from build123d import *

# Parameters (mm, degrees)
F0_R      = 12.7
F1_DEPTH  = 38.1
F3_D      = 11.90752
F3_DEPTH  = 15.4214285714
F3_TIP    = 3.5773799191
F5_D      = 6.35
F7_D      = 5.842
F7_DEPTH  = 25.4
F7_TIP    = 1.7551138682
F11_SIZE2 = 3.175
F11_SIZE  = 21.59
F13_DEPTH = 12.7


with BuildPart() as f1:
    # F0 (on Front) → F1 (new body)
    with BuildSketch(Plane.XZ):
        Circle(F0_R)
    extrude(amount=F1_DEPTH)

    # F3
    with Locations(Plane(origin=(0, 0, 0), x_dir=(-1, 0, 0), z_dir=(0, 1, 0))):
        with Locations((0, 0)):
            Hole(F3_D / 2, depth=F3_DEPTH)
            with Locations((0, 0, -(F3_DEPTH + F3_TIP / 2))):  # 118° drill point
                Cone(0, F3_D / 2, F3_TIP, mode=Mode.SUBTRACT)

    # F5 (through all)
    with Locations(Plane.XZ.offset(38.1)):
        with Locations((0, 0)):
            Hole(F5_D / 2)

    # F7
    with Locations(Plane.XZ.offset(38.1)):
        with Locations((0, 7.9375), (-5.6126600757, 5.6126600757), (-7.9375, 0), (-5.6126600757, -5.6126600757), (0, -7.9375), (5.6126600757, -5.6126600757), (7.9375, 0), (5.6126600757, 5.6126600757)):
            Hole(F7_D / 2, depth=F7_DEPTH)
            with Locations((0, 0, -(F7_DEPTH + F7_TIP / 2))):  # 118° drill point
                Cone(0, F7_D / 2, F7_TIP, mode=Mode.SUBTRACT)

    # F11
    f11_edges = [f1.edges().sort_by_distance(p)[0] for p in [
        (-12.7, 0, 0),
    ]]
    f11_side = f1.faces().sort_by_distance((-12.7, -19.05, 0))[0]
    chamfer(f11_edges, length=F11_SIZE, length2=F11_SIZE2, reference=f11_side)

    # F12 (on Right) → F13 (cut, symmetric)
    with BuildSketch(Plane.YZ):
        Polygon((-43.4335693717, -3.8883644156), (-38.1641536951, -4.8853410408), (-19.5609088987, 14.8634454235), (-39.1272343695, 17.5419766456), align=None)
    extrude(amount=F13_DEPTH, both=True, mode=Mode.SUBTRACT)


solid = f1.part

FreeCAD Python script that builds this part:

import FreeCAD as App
import Part
import Sketcher
from FreeCAD import Vector
Q = App.Units.Quantity


def edges_at(feature, points):
    """Names of the edges that pass closest to the given points."""
    edges = feature.Shape.Edges
    near = lambda p: min(range(len(edges)), key=lambda i: edges[i].distToShape(Part.Vertex(*p))[0])
    return sorted({f"Edge{near(p) + 1}" for p in points})

doc = App.newDocument("Part")
body = doc.addObject("PartDesign::Body", "Body")

sketch1 = doc.addObject("Sketcher::SketchObject", "Sketch")
body.addObject(sketch1)
sketch1.AttachmentSupport = (doc.XZ_Plane, [""])
sketch1.MapMode = "FlatFace"
sketch1.addGeometry(Part.Circle(Vector(0, 0, 0), Vector(0, 0, 1), 13), False)
sketch1.addConstraint([
    Sketcher.Constraint("Coincident", 0, 3, -1, 1),
    Sketcher.Constraint("Diameter", 0, Q("1 in")),
])
pad1 = doc.addObject("PartDesign::Pad", "Pad")
body.addObject(pad1)
pad1.Profile = sketch1
pad1.Length = Q("1.5 in")

sketch2 = doc.addObject("Sketcher::SketchObject", "Sketch001")
body.addObject(sketch2)
sketch2.AttachmentSupport = (doc.XZ_Plane, [""])
sketch2.MapMode = "FlatFace"
sketch2.addGeometry(Part.Circle(Vector(0, 0, 0), Vector(0, 0, 1), 6), False)
sketch2.addConstraint([
    Sketcher.Constraint("Coincident", 0, 3, -1, 1),
    Sketcher.Constraint("Diameter", 0, Q("0.4688 in")),
])
doc.recompute()
hole = doc.addObject("PartDesign::Hole", "Hole")
body.addObject(hole)
hole.Profile = sketch2
hole.ThreadType = "None"
hole.Diameter = Q("0.4688 in")
hole.DepthType = "Dimension"
hole.Depth = 15.421429
hole.DrillPoint = "Angled"
hole.DrillPointAngle = 118
hole.Reversed = True

sketch3 = doc.addObject("Sketcher::SketchObject", "Sketch002")
body.addObject(sketch3)
sketch3.AttachmentSupport = (doc.XZ_Plane, [""])
sketch3.MapMode = "FlatFace"
sketch3.AttachmentOffset = App.Placement(Vector(0, 0, 1.5 * 25.4), App.Rotation())
sketch3.addGeometry(Part.Circle(Vector(0, 0, 0), Vector(0, 0, 1), 3.2), False)
sketch3.addConstraint([
    Sketcher.Constraint("Coincident", 0, 3, -1, 1),
    Sketcher.Constraint("Diameter", 0, Q("0.25 in")),
])
doc.recompute()
hole2 = doc.addObject("PartDesign::Hole", "Hole001")
body.addObject(hole2)
hole2.Profile = sketch3
hole2.ThreadType = "None"
hole2.Diameter = Q("0.25 in")
hole2.DepthType = "ThroughAll"

sketch4 = doc.addObject("Sketcher::SketchObject", "Sketch003")
body.addObject(sketch4)
sketch4.AttachmentSupport = (doc.XZ_Plane, [""])
sketch4.MapMode = "FlatFace"
sketch4.AttachmentOffset = App.Placement(Vector(0, 0, 1.5 * 25.4), App.Rotation())
sketch4.addGeometry([
    Part.Circle(Vector(0, 7.9, 0), Vector(0, 0, 1), 2.9),
    Part.Circle(Vector(-5.6, 5.6, 0), Vector(0, 0, 1), 2.9),
    Part.Circle(Vector(-7.9, 0, 0), Vector(0, 0, 1), 2.9),
    Part.Circle(Vector(-5.6, -5.6, 0), Vector(0, 0, 1), 2.9),
    Part.Circle(Vector(0, -7.9, 0), Vector(0, 0, 1), 2.9),
    Part.Circle(Vector(5.6, -5.6, 0), Vector(0, 0, 1), 2.9),
    Part.Circle(Vector(7.9, 0, 0), Vector(0, 0, 1), 2.9),
    Part.Circle(Vector(5.6, 5.6, 0), Vector(0, 0, 1), 2.9),
], False)
sketch4.addConstraint([
    Sketcher.Constraint("Equal", 0, 1),
    Sketcher.Constraint("Equal", 1, 2),
    Sketcher.Constraint("Equal", 2, 3),
    Sketcher.Constraint("Equal", 3, 4),
    Sketcher.Constraint("Equal", 4, 5),
    Sketcher.Constraint("Equal", 5, 6),
    Sketcher.Constraint("Equal", 6, 7),
    Sketcher.Constraint("Symmetric", 0, 3, 4, 3, -1, 1),
    Sketcher.Constraint("Symmetric", 1, 3, 5, 3, -1, 1),
    Sketcher.Constraint("Symmetric", 2, 3, 6, 3, -1, 1),
    Sketcher.Constraint("Symmetric", 3, 3, 7, 3, -1, 1),
    Sketcher.Constraint("Symmetric", 3, 3, 5, 3, -2),
    Sketcher.Constraint("PointOnObject", 0, 3, -2),
    Sketcher.Constraint("PointOnObject", 2, 3, -1),
    Sketcher.Constraint("Diameter", 0, Q("0.23 in")),
    Sketcher.Constraint("DistanceY", -1, 1, 0, 3, Q("0.3125 in")),
    Sketcher.Constraint("DistanceX", 2, 3, -1, 1, Q("0.3125 in")),
    Sketcher.Constraint("DistanceX", 1, 3, -1, 1, Q("5.61266 mm")),
    Sketcher.Constraint("DistanceY", -1, 1, 1, 3, Q("5.61266 mm")),
])
doc.recompute()
hole3 = doc.addObject("PartDesign::Hole", "Hole002")
body.addObject(hole3)
hole3.Profile = sketch4
hole3.ThreadType = "None"
hole3.Diameter = Q("0.23 in")
hole3.DepthType = "Dimension"
hole3.Depth = Q("1 in")
hole3.DrillPoint = "Angled"
hole3.DrillPointAngle = 118
doc.recompute()

chamfer = doc.addObject("PartDesign::Chamfer", "Chamfer")
body.addObject(chamfer)
chamfer.Base = (hole3, edges_at(hole3, [(-12.7, 0, 0)]))
chamfer.ChamferType = "Two distances"
chamfer.Size = Q("0.85 in")
chamfer.Size2 = Q("0.125 in")

sketch5 = doc.addObject("Sketcher::SketchObject", "Sketch004")
body.addObject(sketch5)
sketch5.AttachmentSupport = (doc.YZ_Plane, [""])
sketch5.MapMode = "FlatFace"
sketch5.addGeometry([
    Part.LineSegment(Vector(-43, -4, 0), Vector(-38, -5, 0)),
    Part.LineSegment(Vector(-38, -5, 0), Vector(-20, 15, 0)),
    Part.LineSegment(Vector(-20, 15, 0), Vector(-39, 18, 0)),
    Part.LineSegment(Vector(-39, 18, 0), Vector(-43, -4, 0)),
], False)
sketch5.addConstraint([
    Sketcher.Constraint("Coincident", 0, 2, 1, 1),
    Sketcher.Constraint("Coincident", 1, 2, 2, 1),
    Sketcher.Constraint("Coincident", 2, 2, 3, 1),
    Sketcher.Constraint("Coincident", 3, 2, 0, 1),
    Sketcher.Constraint("Distance", 0, Q("5.362901 mm")),
    Sketcher.Constraint("Distance", 3, Q("21.858729 mm")),
    Sketcher.Constraint("DistanceY", 0, 2, -1, 1, Q("4.885341 mm")),
    Sketcher.Constraint("DistanceX", 1, 2, -1, 1, Q("19.560909 mm")),
    Sketcher.Constraint("DistanceX", 3, 2, -1, 1, Q("43.433569 mm")),
    Sketcher.Constraint("DistanceY", 1, 2, 2, 2, Q("2.678531 mm")),
    Sketcher.Constraint("DistanceX", 2, 2, 0, 2, Q("0.963081 mm")),
    Sketcher.Constraint("DistanceY", 3, 2, 2, 2, Q("21.430341 mm")),
])
pocket1 = doc.addObject("PartDesign::Pocket", "Pocket")
body.addObject(pocket1)
pocket1.Profile = sketch5
pocket1.Length = Q("1 in")
pocket1.Midplane = True

doc.recompute()
